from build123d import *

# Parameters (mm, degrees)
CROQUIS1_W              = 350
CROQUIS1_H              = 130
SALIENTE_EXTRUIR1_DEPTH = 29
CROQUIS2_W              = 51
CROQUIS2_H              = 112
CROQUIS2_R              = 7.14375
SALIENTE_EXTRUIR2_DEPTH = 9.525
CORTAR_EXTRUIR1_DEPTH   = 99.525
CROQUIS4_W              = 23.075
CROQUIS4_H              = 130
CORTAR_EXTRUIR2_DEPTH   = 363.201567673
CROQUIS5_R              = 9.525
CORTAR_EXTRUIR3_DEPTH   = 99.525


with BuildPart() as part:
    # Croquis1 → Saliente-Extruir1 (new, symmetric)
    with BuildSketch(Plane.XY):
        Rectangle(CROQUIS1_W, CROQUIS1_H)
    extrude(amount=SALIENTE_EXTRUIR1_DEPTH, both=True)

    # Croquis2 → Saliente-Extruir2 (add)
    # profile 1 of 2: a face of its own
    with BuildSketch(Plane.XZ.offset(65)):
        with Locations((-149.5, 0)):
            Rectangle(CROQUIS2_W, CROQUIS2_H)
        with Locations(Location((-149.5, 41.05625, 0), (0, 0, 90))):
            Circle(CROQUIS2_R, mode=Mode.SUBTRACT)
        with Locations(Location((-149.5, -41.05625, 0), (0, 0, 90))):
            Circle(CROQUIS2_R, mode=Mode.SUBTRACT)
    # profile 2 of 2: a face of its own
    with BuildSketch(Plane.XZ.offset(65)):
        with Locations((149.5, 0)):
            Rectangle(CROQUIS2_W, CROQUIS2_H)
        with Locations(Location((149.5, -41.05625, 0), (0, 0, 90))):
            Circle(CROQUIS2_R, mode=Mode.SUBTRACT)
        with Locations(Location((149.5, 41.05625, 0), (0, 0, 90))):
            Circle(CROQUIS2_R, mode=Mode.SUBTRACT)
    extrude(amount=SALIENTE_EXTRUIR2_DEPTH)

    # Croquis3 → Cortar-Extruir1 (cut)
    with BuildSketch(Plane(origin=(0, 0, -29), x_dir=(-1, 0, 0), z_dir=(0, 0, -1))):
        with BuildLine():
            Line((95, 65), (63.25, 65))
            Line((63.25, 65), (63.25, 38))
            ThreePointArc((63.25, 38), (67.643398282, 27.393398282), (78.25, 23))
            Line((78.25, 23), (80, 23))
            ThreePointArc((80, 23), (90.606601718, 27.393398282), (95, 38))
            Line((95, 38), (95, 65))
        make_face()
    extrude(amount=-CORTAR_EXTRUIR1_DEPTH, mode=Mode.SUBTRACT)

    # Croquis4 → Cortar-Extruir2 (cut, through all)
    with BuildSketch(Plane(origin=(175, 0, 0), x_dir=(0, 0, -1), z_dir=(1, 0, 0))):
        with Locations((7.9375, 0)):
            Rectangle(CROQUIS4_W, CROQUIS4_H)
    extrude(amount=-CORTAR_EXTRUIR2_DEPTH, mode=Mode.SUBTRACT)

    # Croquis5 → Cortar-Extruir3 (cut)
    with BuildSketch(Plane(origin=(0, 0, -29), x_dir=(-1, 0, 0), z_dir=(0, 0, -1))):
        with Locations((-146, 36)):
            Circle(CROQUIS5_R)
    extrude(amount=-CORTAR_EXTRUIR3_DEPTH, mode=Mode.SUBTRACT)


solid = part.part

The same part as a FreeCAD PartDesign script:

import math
import FreeCAD as App
import Part
import Sketcher
from FreeCAD import Vector

doc = App.newDocument("Part")
body = doc.addObject("PartDesign::Body", "Body")

sketch1 = doc.addObject("Sketcher::SketchObject", "Sketch")
body.addObject(sketch1)
sketch1.AttachmentSupport = (doc.XY_Plane, [""])
sketch1.MapMode = "FlatFace"
sketch1.addGeometry(Part.LineSegment(Vector(-175, 65, 0), Vector(-175, -65, 0)), False)
sketch1.addGeometry(Part.LineSegment(Vector(-175, -65, 0), Vector(175, -65, 0)), False)
sketch1.addGeometry(Part.LineSegment(Vector(175, -65, 0), Vector(175, 65, 0)), False)
sketch1.addGeometry(Part.LineSegment(Vector(175, 65, 0), Vector(-175, 65, 0)), False)
sketch1.addConstraint(Sketcher.Constraint("Coincident", 0, 2, 1, 1))
sketch1.addConstraint(Sketcher.Constraint("Coincident", 1, 2, 2, 1))
sketch1.addConstraint(Sketcher.Constraint("Coincident", 2, 2, 3, 1))
sketch1.addConstraint(Sketcher.Constraint("Coincident", 3, 2, 0, 1))
sketch1.addConstraint(Sketcher.Constraint("Vertical", 0))
sketch1.addConstraint(Sketcher.Constraint("Horizontal", 1))
sketch1.addConstraint(Sketcher.Constraint("Vertical", 2))
sketch1.addConstraint(Sketcher.Constraint("Horizontal", 3))
sketch1.addConstraint(Sketcher.Constraint("Symmetric", 0, 2, 2, 2, -1, 1))
sketch1.addConstraint(Sketcher.Constraint("DistanceX", 1, 1, 1, 2, 350.0))
sketch1.addConstraint(Sketcher.Constraint("DistanceY", 0, 2, 0, 1, 130.0))
pad1 = doc.addObject("PartDesign::Pad", "Pad")
body.addObject(pad1)
pad1.Profile = sketch1
pad1.Length = 58
pad1.Midplane = True

sketch2 = doc.addObject("Sketcher::SketchObject", "Sketch001")
body.addObject(sketch2)
sketch2.AttachmentSupport = (doc.XZ_Plane, [""])
sketch2.MapMode = "FlatFace"
sketch2.AttachmentOffset = App.Placement(Vector(0, 0, 65), App.Rotation())
sketch2.addGeometry(Part.LineSegment(Vector(-175, 56, 0), Vector(-175, -56, 0)), False)
sketch2.addGeometry(Part.LineSegment(Vector(-175, -56, 0), Vector(-124, -56, 0)), False)
sketch2.addGeometry(Part.LineSegment(Vector(-124, -56, 0), Vector(-124, 56, 0)), False)
sketch2.addGeometry(Part.LineSegment(Vector(-124, 56, 0), Vector(-175, 56, 0)), False)
sketch2.addGeometry(Part.Circle(Vector(-149.5, -41.05625, 0), Vector(0, 0, 1), 7.14375), False)
sketch2.addGeometry(Part.Circle(Vector(-149.5, 41.05625, 0), Vector(0, 0, 1), 7.14375), False)
sketch2.addGeometry(Part.LineSegment(Vector(124, 56, 0), Vector(124, -56, 0)), False)
sketch2.addGeometry(Part.LineSegment(Vector(124, -56, 0), Vector(175, -56, 0)), False)
sketch2.addGeometry(Part.LineSegment(Vector(175, -56, 0), Vector(175, 56, 0)), False)
sketch2.addGeometry(Part.LineSegment(Vector(175, 56, 0), Vector(124, 56, 0)), False)
sketch2.addGeometry(Part.Circle(Vector(149.5, -41.05625, 0), Vector(0, 0, 1), 7.14375), False)
sketch2.addGeometry(Part.Circle(Vector(149.5, 41.05625, 0), Vector(0, 0, 1), 7.14375), False)
sketch2.addConstraint(Sketcher.Constraint("Coincident", 0, 2, 1, 1))
sketch2.addConstraint(Sketcher.Constraint("Coincident", 1, 2, 2, 1))
sketch2.addConstraint(Sketcher.Constraint("Coincident", 2, 2, 3, 1))
sketch2.addConstraint(Sketcher.Constraint("Coincident", 3, 2, 0, 1))
sketch2.addConstraint(Sketcher.Constraint("Coincident", 6, 2, 7, 1))
sketch2.addConstraint(Sketcher.Constraint("Coincident", 7, 2, 8, 1))
sketch2.addConstraint(Sketcher.Constraint("Coincident", 8, 2, 9, 1))
sketch2.addConstraint(Sketcher.Constraint("Coincident", 9, 2, 6, 1))
sketch2.addConstraint(Sketcher.Constraint("Vertical", 0))
sketch2.addConstraint(Sketcher.Constraint("Horizontal", 1))
sketch2.addConstraint(Sketcher.Constraint("Vertical", 2))
sketch2.addConstraint(Sketcher.Constraint("Horizontal", 3))
sketch2.addConstraint(Sketcher.Constraint("Vertical", 6))
sketch2.addConstraint(Sketcher.Constraint("Horizontal", 7))
sketch2.addConstraint(Sketcher.Constraint("Vertical", 8))
sketch2.addConstraint(Sketcher.Constraint("Horizontal", 9))
sketch2.addConstraint(Sketcher.Constraint("Equal", 4, 5))
sketch2.addConstraint(Sketcher.Constraint("Equal", 5, 10))
sketch2.addConstraint(Sketcher.Constraint("Equal", 10, 11))
sketch2.addConstraint(Sketcher.Constraint("Symmetric", 5, 3, 10, 3, -1, 1))
sketch2.addConstraint(Sketcher.Constraint("Symmetric", 4, 3, 11, 3, -1, 1))
sketch2.addConstraint(Sketcher.Constraint("Symmetric", 2, 2, 6, 2, -1, 1))
sketch2.addConstraint(Sketcher.Constraint("Symmetric", 0, 2, 8, 2, -1, 1))
sketch2.addConstraint(Sketcher.Constraint("Symmetric", 4, 3, 10, 3, -2))
sketch2.addConstraint(Sketcher.Constraint("Horizontal", 1, 2, 6, 2))
sketch2.addConstraint(Sketcher.Constraint("DistanceX", 1, 1, 1, 2, 51.0))
sketch2.addConstraint(Sketcher.Constraint("DistanceY", 0, 2, 0, 1, 112.0))
sketch2.addConstraint(Sketcher.Constraint("DistanceX", 0, 2, -1, 1, 175.0))
sketch2.addConstraint(Sketcher.Constraint("DistanceX", 4, 3, 10, 3, 299.0))
sketch2.addConstraint(Sketcher.Constraint("Diameter", 4, 14.2875))
sketch2.addConstraint(Sketcher.Constraint("DistanceY", 4, 3, 5, 3, 82.1125))
pad2 = doc.addObject("PartDesign::Pad", "Pad001")
body.addObject(pad2)
pad2.Profile = sketch2
pad2.Length = 9.525

sketch3 = doc.addObject("Sketcher::SketchObject", "Sketch002")
body.addObject(sketch3)
sketch3.AttachmentSupport = (doc.XY_Plane, [""])
sketch3.MapMode = "FlatFace"
sketch3.AttachmentOffset = App.Placement(Vector(0, 0, -29), App.Rotation())
sketch3.addGeometry(Part.LineSegment(Vector(-95, 65, 0), Vector(-63.25, 65, 0)), False)
sketch3.addGeometry(Part.LineSegment(Vector(-63.25, 65, 0), Vector(-63.25, 38, 0)), False)
sketch3.addGeometry(Part.ArcOfCircle(Part.Circle(Vector(-78.25, 38, 0), Vector(0, 0, 1), 15), math.radians(-90), math.radians(0)), False)
sketch3.addGeometry(Part.LineSegment(Vector(-78.25, 23, 0), Vector(-80, 23, 0)), False)
sketch3.addGeometry(Part.ArcOfCircle(Part.Circle(Vector(-80, 38, 0), Vector(0, 0, 1), 15), math.radians(180), math.radians(270)), False)
sketch3.addGeometry(Part.LineSegment(Vector(-95, 38, 0), Vector(-95, 65, 0)), False)
sketch3.addConstraint(Sketcher.Constraint("Coincident", 0, 2, 1, 1))
sketch3.addConstraint(Sketcher.Constraint("Tangent", 1, 2, 2, 2))
sketch3.addConstraint(Sketcher.Constraint("Tangent", 2, 1, 3, 1))
sketch3.addConstraint(Sketcher.Constraint("Tangent", 3, 2, 4, 2))
sketch3.addConstraint(Sketcher.Constraint("Tangent", 4, 1, 5, 1))
sketch3.addConstraint(Sketcher.Constraint("Coincident", 5, 2, 0, 1))
sketch3.addConstraint(Sketcher.Constraint("Horizontal", 0))
sketch3.addConstraint(Sketcher.Constraint("Vertical", 1))
sketch3.addConstraint(Sketcher.Constraint("Horizontal", 3))
sketch3.addConstraint(Sketcher.Constraint("Vertical", 5))
sketch3.addConstraint(Sketcher.Constraint("Equal", 2, 4))
sketch3.addConstraint(Sketcher.Constraint("Radius", 2, 15.0))
sketch3.addConstraint(Sketcher.Constraint("DistanceY", 1, 2, 1, 1, 27.0))
sketch3.addConstraint(Sketcher.Constraint("DistanceY", -1, 1, 2, 3, 38.0))
sketch3.addConstraint(Sketcher.Constraint("DistanceX", 4, 3, -1, 1, 80.0))
sketch3.addConstraint(Sketcher.Constraint("DistanceX", 0, 1, 0, 2, 31.75))
pocket1 = doc.addObject("PartDesign::Pocket", "Pocket")
body.addObject(pocket1)
pocket1.Profile = sketch3
pocket1.Length = 99.525
pocket1.Reversed = True

sketch4 = doc.addObject("Sketcher::SketchObject", "Sketch003")
body.addObject(sketch4)
sketch4.AttachmentSupport = (doc.YZ_Plane, [""])
sketch4.MapMode = "FlatFace"
sketch4.AttachmentOffset = App.Placement(Vector(0, 0, 175), App.Rotation())
sketch4.addGeometry(Part.LineSegment(Vector(65, 3.6, 0), Vector(-65, 3.6, 0)), False)
sketch4.addGeometry(Part.LineSegment(Vector(-65, 3.6, 0), Vector(-65, -19.475, 0)), False)
sketch4.addGeometry(Part.LineSegment(Vector(-65, -19.475, 0), Vector(65, -19.475, 0)), False)
sketch4.addGeometry(Part.LineSegment(Vector(65, -19.475, 0), Vector(65, 3.6, 0)), False)
sketch4.addConstraint(Sketcher.Constraint("Coincident", 0, 2, 1, 1))
sketch4.addConstraint(Sketcher.Constraint("Coincident", 1, 2, 2, 1))
sketch4.addConstraint(Sketcher.Constraint("Coincident", 2, 2, 3, 1))
sketch4.addConstraint(Sketcher.Constraint("Coincident", 3, 2, 0, 1))
sketch4.addConstraint(Sketcher.Constraint("Horizontal", 0))
sketch4.addConstraint(Sketcher.Constraint("Vertical", 1))
sketch4.addConstraint(Sketcher.Constraint("Horizontal", 2))
sketch4.addConstraint(Sketcher.Constraint("Vertical", 3))
sketch4.addConstraint(Sketcher.Constraint("DistanceX", 0, 2, 0, 1, 130.0))
sketch4.addConstraint(Sketcher.Constraint("DistanceX", 0, 2, -1, 1, 65.0))
sketch4.addConstraint(Sketcher.Constraint("DistanceY", -1, 1, 0, 2, 3.6))
sketch4.addConstraint(Sketcher.Constraint("DistanceY", 1, 2, 1, 1, 23.075))
pocket2 = doc.addObject("PartDesign::Pocket", "Pocket001")
body.addObject(pocket2)
pocket2.Profile = sketch4
pocket2.Type = "ThroughAll"

sketch5 = doc.addObject("Sketcher::SketchObject", "Sketch004")
body.addObject(sketch5)
sketch5.AttachmentSupport = (doc.XY_Plane, [""])
sketch5.MapMode = "FlatFace"
sketch5.AttachmentOffset = App.Placement(Vector(0, 0, -29), App.Rotation())
sketch5.addGeometry(Part.Circle(Vector(146, 36, 0), Vector(0, 0, 1), 9.525), False)
sketch5.addConstraint(Sketcher.Constraint("Diameter", 0, 19.05))
sketch5.addConstraint(Sketcher.Constraint("DistanceX", -1, 1, 0, 3, 146.0))
sketch5.addConstraint(Sketcher.Constraint("DistanceY", -1, 1, 0, 3, 36.0))
pocket3 = doc.addObject("PartDesign::Pocket", "Pocket002")
body.addObject(pocket3)
pocket3.Profile = sketch5
pocket3.Length = 99.525
pocket3.Reversed = True

doc.recompute()
